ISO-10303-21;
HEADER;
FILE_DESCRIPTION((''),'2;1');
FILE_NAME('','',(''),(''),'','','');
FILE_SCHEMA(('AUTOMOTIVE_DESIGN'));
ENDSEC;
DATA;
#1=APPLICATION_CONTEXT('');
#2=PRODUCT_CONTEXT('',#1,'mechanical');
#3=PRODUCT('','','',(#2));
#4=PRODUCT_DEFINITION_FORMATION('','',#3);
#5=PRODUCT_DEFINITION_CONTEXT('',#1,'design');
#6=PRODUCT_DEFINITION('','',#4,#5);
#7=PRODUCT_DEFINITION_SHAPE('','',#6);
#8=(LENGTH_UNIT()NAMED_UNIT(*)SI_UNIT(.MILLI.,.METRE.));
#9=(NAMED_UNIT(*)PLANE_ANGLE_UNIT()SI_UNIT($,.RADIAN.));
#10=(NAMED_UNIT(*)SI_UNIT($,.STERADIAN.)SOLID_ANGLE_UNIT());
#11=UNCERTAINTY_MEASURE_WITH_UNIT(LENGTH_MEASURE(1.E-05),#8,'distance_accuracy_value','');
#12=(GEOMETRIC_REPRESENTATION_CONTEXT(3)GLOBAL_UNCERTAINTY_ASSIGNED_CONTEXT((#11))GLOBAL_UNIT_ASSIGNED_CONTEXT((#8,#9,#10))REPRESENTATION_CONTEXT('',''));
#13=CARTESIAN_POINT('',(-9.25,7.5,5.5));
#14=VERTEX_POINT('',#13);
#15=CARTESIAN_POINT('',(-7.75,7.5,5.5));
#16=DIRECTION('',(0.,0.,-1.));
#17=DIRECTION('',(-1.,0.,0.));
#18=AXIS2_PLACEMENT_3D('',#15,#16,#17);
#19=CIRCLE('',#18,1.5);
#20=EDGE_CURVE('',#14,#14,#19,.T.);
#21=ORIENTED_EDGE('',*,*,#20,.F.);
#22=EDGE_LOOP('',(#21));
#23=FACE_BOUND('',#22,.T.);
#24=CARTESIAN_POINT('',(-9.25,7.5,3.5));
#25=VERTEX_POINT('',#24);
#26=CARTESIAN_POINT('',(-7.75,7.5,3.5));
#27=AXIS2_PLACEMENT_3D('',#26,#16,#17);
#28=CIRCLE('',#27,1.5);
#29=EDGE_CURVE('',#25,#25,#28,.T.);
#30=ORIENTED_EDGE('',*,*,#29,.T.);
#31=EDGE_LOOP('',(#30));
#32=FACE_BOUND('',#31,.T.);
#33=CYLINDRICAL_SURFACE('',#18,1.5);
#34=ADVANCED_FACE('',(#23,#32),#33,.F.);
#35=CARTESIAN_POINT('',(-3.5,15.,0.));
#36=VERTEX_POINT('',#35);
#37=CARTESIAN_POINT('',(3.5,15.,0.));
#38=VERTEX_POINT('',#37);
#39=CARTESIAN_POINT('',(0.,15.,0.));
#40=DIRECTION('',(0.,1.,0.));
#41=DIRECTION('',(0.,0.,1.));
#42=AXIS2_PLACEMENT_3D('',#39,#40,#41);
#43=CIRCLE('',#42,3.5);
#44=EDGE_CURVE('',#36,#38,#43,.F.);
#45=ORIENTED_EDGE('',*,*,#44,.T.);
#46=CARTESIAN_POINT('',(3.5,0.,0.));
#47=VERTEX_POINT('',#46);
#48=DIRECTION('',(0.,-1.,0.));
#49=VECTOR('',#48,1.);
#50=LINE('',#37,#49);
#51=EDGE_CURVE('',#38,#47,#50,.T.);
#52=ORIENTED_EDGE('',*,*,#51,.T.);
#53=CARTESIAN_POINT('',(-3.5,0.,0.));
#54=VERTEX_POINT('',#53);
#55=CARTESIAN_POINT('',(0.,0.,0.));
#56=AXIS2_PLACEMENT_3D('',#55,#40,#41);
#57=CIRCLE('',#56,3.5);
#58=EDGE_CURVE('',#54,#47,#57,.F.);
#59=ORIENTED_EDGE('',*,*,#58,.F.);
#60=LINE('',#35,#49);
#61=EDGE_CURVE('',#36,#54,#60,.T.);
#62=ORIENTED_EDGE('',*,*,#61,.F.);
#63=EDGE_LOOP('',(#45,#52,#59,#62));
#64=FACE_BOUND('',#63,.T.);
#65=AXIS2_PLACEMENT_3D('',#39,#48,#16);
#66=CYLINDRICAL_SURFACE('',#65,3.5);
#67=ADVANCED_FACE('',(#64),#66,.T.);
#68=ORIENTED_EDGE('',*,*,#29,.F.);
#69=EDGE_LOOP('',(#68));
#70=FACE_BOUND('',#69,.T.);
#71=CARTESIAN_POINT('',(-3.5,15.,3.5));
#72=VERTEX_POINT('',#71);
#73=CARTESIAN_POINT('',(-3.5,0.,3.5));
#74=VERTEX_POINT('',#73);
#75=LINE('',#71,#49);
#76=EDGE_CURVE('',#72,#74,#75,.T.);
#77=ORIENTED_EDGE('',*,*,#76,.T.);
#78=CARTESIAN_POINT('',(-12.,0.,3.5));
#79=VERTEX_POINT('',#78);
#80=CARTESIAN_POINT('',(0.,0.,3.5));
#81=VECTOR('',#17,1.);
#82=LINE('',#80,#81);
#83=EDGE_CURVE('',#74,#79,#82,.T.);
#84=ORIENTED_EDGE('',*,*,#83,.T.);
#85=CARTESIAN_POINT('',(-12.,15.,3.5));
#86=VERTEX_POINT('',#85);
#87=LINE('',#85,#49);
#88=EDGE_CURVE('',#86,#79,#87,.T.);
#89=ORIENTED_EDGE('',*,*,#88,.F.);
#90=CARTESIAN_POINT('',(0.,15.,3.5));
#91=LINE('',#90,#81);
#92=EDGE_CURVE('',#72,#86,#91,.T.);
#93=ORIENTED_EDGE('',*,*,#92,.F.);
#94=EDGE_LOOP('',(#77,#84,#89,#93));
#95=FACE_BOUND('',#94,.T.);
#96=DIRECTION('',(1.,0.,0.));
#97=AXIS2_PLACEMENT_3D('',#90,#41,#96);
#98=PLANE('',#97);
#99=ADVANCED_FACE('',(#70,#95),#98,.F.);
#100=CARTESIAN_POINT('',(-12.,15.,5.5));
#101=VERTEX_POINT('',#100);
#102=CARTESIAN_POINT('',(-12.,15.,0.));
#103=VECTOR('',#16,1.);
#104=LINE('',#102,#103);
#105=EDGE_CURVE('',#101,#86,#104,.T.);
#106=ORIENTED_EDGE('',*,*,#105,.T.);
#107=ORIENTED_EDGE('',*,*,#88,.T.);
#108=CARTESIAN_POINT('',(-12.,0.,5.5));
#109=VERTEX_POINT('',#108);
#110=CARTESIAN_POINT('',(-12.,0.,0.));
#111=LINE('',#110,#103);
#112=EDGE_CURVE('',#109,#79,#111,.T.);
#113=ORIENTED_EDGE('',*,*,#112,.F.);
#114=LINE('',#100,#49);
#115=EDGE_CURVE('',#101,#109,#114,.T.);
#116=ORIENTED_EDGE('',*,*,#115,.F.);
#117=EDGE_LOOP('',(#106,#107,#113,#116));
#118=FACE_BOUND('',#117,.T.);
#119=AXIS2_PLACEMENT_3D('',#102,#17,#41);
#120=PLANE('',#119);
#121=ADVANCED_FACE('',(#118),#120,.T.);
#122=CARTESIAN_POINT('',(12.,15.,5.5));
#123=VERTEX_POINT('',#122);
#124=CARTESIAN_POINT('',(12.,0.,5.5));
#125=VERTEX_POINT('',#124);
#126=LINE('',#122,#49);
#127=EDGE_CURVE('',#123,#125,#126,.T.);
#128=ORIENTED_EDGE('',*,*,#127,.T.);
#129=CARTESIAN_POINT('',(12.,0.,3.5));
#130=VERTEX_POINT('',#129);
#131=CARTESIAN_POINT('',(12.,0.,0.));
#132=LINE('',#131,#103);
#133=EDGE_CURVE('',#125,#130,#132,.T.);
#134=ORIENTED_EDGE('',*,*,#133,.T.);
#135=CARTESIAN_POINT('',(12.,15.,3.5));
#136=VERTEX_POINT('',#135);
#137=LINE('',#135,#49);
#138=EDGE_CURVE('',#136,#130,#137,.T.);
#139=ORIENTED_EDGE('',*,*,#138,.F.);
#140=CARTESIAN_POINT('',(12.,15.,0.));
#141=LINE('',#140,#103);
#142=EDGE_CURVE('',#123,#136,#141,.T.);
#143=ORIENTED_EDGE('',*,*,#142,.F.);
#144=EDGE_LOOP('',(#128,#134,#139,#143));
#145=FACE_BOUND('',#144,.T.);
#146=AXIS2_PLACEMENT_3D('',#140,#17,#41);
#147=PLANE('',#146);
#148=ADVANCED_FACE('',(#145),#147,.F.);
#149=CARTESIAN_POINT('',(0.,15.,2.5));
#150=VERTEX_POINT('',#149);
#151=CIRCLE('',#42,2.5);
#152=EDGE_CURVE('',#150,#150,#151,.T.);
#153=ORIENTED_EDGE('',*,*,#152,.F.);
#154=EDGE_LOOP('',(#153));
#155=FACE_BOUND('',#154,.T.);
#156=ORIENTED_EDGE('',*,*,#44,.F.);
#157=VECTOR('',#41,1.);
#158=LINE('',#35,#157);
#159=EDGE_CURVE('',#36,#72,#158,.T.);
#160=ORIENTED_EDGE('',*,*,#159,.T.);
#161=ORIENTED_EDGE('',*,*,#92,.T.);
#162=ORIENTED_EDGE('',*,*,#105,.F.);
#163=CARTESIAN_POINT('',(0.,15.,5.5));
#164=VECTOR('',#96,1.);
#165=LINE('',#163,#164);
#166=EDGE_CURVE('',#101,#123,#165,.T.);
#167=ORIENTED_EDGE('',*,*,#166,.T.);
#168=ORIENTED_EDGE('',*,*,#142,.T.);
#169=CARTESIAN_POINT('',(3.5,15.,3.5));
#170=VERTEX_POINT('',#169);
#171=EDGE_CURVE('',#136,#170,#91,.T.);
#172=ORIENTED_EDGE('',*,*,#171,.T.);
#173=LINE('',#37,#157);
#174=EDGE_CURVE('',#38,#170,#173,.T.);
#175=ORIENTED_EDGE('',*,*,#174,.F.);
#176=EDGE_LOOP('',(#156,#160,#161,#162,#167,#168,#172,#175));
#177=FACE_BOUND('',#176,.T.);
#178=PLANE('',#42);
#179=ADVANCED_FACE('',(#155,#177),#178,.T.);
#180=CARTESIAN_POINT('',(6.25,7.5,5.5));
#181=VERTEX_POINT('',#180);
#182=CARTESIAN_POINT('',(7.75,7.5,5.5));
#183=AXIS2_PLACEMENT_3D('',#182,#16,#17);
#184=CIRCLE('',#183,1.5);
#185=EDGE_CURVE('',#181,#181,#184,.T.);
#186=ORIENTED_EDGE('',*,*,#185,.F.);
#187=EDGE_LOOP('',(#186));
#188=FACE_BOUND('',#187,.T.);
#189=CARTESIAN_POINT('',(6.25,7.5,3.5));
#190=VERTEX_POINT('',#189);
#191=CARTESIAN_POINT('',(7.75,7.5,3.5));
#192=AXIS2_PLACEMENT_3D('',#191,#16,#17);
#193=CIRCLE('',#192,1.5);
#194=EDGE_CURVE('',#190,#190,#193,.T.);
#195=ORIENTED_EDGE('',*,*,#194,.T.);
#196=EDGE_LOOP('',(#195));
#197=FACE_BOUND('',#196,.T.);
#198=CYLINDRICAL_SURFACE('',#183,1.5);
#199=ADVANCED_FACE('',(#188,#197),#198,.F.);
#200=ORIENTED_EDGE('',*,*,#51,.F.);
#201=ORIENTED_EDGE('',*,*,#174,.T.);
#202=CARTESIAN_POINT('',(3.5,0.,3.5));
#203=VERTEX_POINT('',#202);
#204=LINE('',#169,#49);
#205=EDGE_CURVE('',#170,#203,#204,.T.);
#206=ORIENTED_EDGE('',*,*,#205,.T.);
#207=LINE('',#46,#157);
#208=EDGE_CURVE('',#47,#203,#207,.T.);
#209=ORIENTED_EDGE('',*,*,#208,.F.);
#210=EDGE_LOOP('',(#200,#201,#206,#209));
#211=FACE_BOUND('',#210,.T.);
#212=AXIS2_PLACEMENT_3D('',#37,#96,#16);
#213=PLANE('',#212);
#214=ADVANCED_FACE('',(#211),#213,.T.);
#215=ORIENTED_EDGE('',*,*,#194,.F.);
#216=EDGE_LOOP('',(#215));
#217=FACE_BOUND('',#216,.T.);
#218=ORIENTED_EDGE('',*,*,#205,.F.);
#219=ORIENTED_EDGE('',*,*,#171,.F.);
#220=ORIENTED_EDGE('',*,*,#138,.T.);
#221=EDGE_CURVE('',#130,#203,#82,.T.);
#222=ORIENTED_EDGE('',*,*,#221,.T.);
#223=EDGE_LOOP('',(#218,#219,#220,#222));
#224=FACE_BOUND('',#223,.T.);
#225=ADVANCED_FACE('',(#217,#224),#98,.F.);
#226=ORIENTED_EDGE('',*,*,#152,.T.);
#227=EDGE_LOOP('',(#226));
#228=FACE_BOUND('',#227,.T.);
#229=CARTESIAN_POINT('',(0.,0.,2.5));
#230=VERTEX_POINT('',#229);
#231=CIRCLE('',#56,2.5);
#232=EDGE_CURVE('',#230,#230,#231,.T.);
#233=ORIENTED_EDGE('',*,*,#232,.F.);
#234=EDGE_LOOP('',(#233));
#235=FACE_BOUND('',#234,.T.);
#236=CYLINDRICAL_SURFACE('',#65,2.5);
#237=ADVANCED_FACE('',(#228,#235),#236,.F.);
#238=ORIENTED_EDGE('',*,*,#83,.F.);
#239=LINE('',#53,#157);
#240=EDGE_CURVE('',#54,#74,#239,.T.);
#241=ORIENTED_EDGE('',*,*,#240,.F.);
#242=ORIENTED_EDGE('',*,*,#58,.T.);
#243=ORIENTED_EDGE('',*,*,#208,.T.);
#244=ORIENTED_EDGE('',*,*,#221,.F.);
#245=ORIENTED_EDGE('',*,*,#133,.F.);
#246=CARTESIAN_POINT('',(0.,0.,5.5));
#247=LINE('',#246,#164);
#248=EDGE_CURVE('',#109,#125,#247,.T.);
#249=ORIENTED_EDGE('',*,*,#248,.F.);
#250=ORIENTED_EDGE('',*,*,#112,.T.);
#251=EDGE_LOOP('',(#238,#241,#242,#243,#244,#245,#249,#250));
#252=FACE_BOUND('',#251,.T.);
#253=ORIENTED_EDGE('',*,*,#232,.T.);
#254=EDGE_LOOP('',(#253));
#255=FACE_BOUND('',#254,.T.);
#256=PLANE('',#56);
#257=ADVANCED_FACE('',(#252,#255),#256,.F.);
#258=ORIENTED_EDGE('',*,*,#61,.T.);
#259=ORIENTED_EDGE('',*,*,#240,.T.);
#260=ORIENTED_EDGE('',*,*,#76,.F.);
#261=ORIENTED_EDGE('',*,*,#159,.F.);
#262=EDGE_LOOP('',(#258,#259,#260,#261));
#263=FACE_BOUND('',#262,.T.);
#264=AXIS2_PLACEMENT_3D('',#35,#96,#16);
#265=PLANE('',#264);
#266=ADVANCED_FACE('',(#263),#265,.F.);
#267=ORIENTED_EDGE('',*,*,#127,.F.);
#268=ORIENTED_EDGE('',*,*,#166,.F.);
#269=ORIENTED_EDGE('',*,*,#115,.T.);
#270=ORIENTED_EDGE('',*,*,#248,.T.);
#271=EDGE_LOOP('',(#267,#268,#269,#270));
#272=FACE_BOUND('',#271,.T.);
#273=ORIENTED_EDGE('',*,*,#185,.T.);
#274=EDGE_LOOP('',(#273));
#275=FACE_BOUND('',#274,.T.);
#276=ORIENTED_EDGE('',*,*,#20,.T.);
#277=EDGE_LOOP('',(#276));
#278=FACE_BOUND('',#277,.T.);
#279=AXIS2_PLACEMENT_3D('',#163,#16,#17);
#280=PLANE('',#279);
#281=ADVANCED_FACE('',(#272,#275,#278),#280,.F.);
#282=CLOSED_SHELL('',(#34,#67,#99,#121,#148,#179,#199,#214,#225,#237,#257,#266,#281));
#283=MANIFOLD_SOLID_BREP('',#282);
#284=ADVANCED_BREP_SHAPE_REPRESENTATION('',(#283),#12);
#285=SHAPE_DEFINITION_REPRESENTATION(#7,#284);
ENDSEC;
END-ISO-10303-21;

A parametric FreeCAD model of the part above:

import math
import FreeCAD as App
import Part
import Sketcher

doc = App.newDocument("Part")
body = doc.addObject("PartDesign::Body", "Body")

sketch1 = body.newObject("Sketcher::SketchObject", "Sketch")
sketch1.AttachmentSupport = (doc.getObject("XZ_Plane"), [""])
sketch1.MapMode = "FlatFace"
sketch1.addGeometry([
    Part.ArcOfCircle(Part.Circle(App.Vector(0, 0, 0), App.Vector(0, 0, 1), 3.5), math.radians(-90), math.radians(0)),
    Part.ArcOfCircle(Part.Circle(App.Vector(0, 0, 0), App.Vector(0, 0, 1), 3.5), math.radians(-180), math.radians(-90)),
    Part.LineSegment(App.Vector(-3.5, 0, 0), App.Vector(-3.5, 3.5, 0)),
    Part.LineSegment(App.Vector(-3.5, 3.5, 0), App.Vector(-12, 3.5, 0)),
    Part.LineSegment(App.Vector(-12, 3.5, 0), App.Vector(-12, 5.5, 0)),
    Part.LineSegment(App.Vector(-12, 5.5, 0), App.Vector(12, 5.5, 0)),
    Part.LineSegment(App.Vector(12, 5.5, 0), App.Vector(12, 3.5, 0)),
    Part.LineSegment(App.Vector(12, 3.5, 0), App.Vector(3.5, 3.5, 0)),
    Part.LineSegment(App.Vector(3.5, 3.5, 0), App.Vector(3.5, 0, 0)),
    Part.ArcOfCircle(Part.Circle(App.Vector(0, 0, 0), App.Vector(0, 0, 1), 2.5), math.radians(-90), math.radians(0)),
    Part.ArcOfCircle(Part.Circle(App.Vector(0, 0, 0), App.Vector(0, 0, 1), 2.5), math.radians(0), math.radians(90)),
    Part.ArcOfCircle(Part.Circle(App.Vector(0, 0, 0), App.Vector(0, 0, 1), 2.5), math.radians(90), math.radians(180)),
    Part.ArcOfCircle(Part.Circle(App.Vector(0, 0, 0), App.Vector(0, 0, 1), 2.5), math.radians(180), math.radians(270)),
], False)
sketch1.addConstraint([
    Sketcher.Constraint("Tangent", 0, 1, 1, 2),
    Sketcher.Constraint("Tangent", 1, 1, 2, 1),
    Sketcher.Constraint("Coincident", 2, 2, 3, 1),
    Sketcher.Constraint("Coincident", 3, 2, 4, 1),
    Sketcher.Constraint("Coincident", 4, 2, 5, 1),
    Sketcher.Constraint("Coincident", 5, 2, 6, 1),
    Sketcher.Constraint("Coincident", 6, 2, 7, 1),
    Sketcher.Constraint("Coincident", 7, 2, 8, 1),
    Sketcher.Constraint("Tangent", 8, 2, 0, 2),
    Sketcher.Constraint("Tangent", 9, 2, 10, 1),
    Sketcher.Constraint("Tangent", 10, 2, 11, 1),
    Sketcher.Constraint("Tangent", 11, 2, 12, 1),
    Sketcher.Constraint("Tangent", 12, 2, 9, 1),
    Sketcher.Constraint("Vertical", 2),
    Sketcher.Constraint("Horizontal", 3),
    Sketcher.Constraint("Vertical", 4),
    Sketcher.Constraint("Horizontal", 5),
    Sketcher.Constraint("Vertical", 6),
    Sketcher.Constraint("Horizontal", 7),
    Sketcher.Constraint("Vertical", 8),
    Sketcher.Constraint("Coincident", 0, 3, -1, 1),
    Sketcher.Constraint("Coincident", 9, 3, -1, 1),
    Sketcher.Constraint("Equal", 0, 1),
    Sketcher.Constraint("Equal", 9, 10),
    Sketcher.Constraint("Symmetric", 3, 2, 6, 2, -2),
    Sketcher.Constraint("PointOnObject", 0, 1, -2),
    Sketcher.Constraint("PointOnObject", 9, 2, -1),
    Sketcher.Constraint("PointOnObject", 10, 2, -2),
    Sketcher.Constraint("PointOnObject", 11, 2, -1),
    Sketcher.Constraint("PointOnObject", 12, 2, -2),
    Sketcher.Constraint("Radius", 0, 3.5),
    Sketcher.Constraint("Radius", 9, 2.5),
    Sketcher.Constraint("DistanceX", 5, 1, 5, 2, 24.0),
    Sketcher.Constraint("DistanceY", 4, 1, 4, 2, 2.0),
    Sketcher.Constraint("DistanceY", 2, 1, 2, 2, 3.5),
])
pad1 = body.newObject("PartDesign::Pad", "Pad")
pad1.Profile = sketch1
pad1.Length = 15
pad1.Reversed = True

sketch2 = body.newObject("Sketcher::SketchObject", "Sketch001")
sketch2.AttachmentSupport = (doc.getObject("XY_Plane"), [""])
sketch2.MapMode = "FlatFace"
sketch2.AttachmentOffset = App.Placement(App.Vector(0, 0, 3.5), App.Rotation())
sketch2.addGeometry([
    Part.ArcOfCircle(Part.Circle(App.Vector(7.7, 7.5, 0), App.Vector(0, 0, 1), 1.5), math.radians(90), math.radians(180)),
    Part.ArcOfCircle(Part.Circle(App.Vector(7.8, 7.5, 0), App.Vector(0, 0, 1), 1.5), math.radians(-90), math.radians(90)),
    Part.ArcOfCircle(Part.Circle(App.Vector(7.7, 7.5, 0), App.Vector(0, 0, 1), 1.5), math.radians(180), math.radians(270)),
    Part.ArcOfCircle(Part.Circle(App.Vector(-7.8, 7.5, 0), App.Vector(0, 0, 1), 1.5), math.radians(90), math.radians(180)),
    Part.ArcOfCircle(Part.Circle(App.Vector(-7.8, 7.5, 0), App.Vector(0, 0, 1), 1.5), math.radians(-90), math.radians(90)),
    Part.ArcOfCircle(Part.Circle(App.Vector(-7.8, 7.5, 0), App.Vector(0, 0, 1), 1.5), math.radians(180), math.radians(270)),
], False)
sketch2.addConstraint([
    Sketcher.Constraint("Tangent", 0, 1, 1, 2),
    Sketcher.Constraint("Tangent", 1, 1, 2, 2),
    Sketcher.Constraint("Tangent", 2, 1, 0, 2),
    Sketcher.Constraint("Tangent", 3, 1, 4, 2),
    Sketcher.Constraint("Tangent", 4, 1, 5, 2),
    Sketcher.Constraint("Tangent", 5, 1, 3, 2),
    Sketcher.Constraint("Equal", 2, 3),
    Sketcher.Constraint("Symmetric", 0, 3, 3, 3, -2),
    Sketcher.Constraint("Horizontal", 5, 3, 2, 1),
    Sketcher.Constraint("Horizontal", 2, 1, 5, 1),
    Sketcher.Constraint("Vertical", 2, 3, 0, 1),
    Sketcher.Constraint("Vertical", 0, 1, 1, 1),
    Sketcher.Constraint("Vertical", 5, 3, 3, 1),
    Sketcher.Constraint("Vertical", 3, 1, 4, 1),
    Sketcher.Constraint("Radius", 0, 1.5),
    Sketcher.Constraint("DistanceY", -1, 1, 0, 1, 9.0),
    Sketcher.Constraint("DistanceX", 3, 1, 2, 1, 14.0),
])
pocket1 = body.newObject("PartDesign::Pocket", "Pocket")
pocket1.Profile = sketch2
pocket1.Type = "ThroughAll"
pocket1.Reversed = True

doc.recompute()
